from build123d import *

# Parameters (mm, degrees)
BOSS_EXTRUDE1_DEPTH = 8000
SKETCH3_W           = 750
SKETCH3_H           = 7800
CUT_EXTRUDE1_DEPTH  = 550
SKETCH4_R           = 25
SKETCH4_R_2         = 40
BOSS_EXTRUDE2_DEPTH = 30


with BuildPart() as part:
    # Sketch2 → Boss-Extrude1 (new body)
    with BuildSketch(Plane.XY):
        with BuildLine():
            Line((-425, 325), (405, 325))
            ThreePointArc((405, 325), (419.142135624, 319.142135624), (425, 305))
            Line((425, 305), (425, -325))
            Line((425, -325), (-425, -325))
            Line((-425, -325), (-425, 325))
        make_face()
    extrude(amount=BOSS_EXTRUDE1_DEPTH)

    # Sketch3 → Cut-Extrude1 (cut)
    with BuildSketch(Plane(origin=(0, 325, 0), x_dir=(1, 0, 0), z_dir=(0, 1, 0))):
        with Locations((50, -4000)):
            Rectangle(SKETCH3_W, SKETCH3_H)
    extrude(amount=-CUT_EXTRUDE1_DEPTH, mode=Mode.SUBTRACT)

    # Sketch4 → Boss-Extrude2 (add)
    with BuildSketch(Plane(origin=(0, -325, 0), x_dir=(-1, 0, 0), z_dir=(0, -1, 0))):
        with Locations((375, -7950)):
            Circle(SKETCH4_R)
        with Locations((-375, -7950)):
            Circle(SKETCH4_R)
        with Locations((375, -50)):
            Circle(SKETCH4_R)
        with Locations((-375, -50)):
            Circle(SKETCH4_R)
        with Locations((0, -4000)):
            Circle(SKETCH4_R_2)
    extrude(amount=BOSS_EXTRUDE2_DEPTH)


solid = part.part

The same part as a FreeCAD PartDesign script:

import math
import FreeCAD as App
import Part
import Sketcher
from FreeCAD import Vector
Q = App.Units.Quantity

doc = App.newDocument("Part")
body = doc.addObject("PartDesign::Body", "Body")

sketch1 = doc.addObject("Sketcher::SketchObject", "Sketch")
body.addObject(sketch1)
sketch1.AttachmentSupport = (doc.XY_Plane, [""])
sketch1.MapMode = "FlatFace"
sketch1.addGeometry([
    Part.LineSegment(Vector(405, 325, 0), Vector(-425, 325, 0)),
    Part.LineSegment(Vector(-425, 325, 0), Vector(-425, -325, 0)),
    Part.LineSegment(Vector(-425, -325, 0), Vector(425, -325, 0)),
    Part.LineSegment(Vector(425, -325, 0), Vector(425, 305, 0)),
    Part.ArcOfCircle(Part.Circle(Vector(405, 305, 0), Vector(0, 0, 1), 20), math.radians(0), math.radians(90)),
], False)
sketch1.addConstraint([
    Sketcher.Constraint("Coincident", 0, 2, 1, 1),
    Sketcher.Constraint("Coincident", 1, 2, 2, 1),
    Sketcher.Constraint("Coincident", 2, 2, 3, 1),
    Sketcher.Constraint("Tangent", 3, 2, 4, 1),
    Sketcher.Constraint("Tangent", 4, 2, 0, 1),
    Sketcher.Constraint("Horizontal", 0),
    Sketcher.Constraint("Vertical", 1),
    Sketcher.Constraint("Horizontal", 2),
    Sketcher.Constraint("Vertical", 3),
    Sketcher.Constraint("Symmetric", 0, 2, 2, 2, -1, 1),
    Sketcher.Constraint("Radius", 4, Q("20 mm")),
    Sketcher.Constraint("DistanceX", 0, 2, 0, 1, Q("830 mm")),
    Sketcher.Constraint("DistanceY", 1, 2, 1, 1, Q("650 mm")),
])
pad1 = doc.addObject("PartDesign::Pad", "Pad")
body.addObject(pad1)
pad1.Profile = sketch1
pad1.Length = 8000

sketch2 = doc.addObject("Sketcher::SketchObject", "Sketch001")
body.addObject(sketch2)
sketch2.AttachmentSupport = (doc.XZ_Plane, [""])
sketch2.MapMode = "FlatFace"
sketch2.AttachmentOffset = App.Placement(Vector(0, 0, -325), App.Rotation())
sketch2.addGeometry([
    Part.LineSegment(Vector(-325, 100, 0), Vector(-325, 7900, 0)),
    Part.LineSegment(Vector(-325, 7900, 0), Vector(425, 7900, 0)),
    Part.LineSegment(Vector(425, 7900, 0), Vector(425, 100, 0)),
    Part.LineSegment(Vector(425, 100, 0), Vector(-325, 100, 0)),
], False)
sketch2.addConstraint([
    Sketcher.Constraint("Coincident", 0, 2, 1, 1),
    Sketcher.Constraint("Coincident", 1, 2, 2, 1),
    Sketcher.Constraint("Coincident", 2, 2, 3, 1),
    Sketcher.Constraint("Coincident", 3, 2, 0, 1),
    Sketcher.Constraint("Vertical", 0),
    Sketcher.Constraint("Horizontal", 1),
    Sketcher.Constraint("Vertical", 2),
    Sketcher.Constraint("Horizontal", 3),
    Sketcher.Constraint("DistanceX", 1, 1, 1, 2, Q("750 mm")),
    Sketcher.Constraint("DistanceY", 0, 1, 0, 2, Q("7800 mm")),
    Sketcher.Constraint("DistanceX", 0, 2, -1, 1, Q("325 mm")),
    Sketcher.Constraint("DistanceY", -1, 1, 0, 2, Q("7900 mm")),
])
pocket1 = doc.addObject("PartDesign::Pocket", "Pocket")
body.addObject(pocket1)
pocket1.Profile = sketch2
pocket1.Length = 550
pocket1.Reversed = True

sketch3 = doc.addObject("Sketcher::SketchObject", "Sketch002")
body.addObject(sketch3)
sketch3.AttachmentSupport = (doc.XZ_Plane, [""])
sketch3.MapMode = "FlatFace"
sketch3.AttachmentOffset = App.Placement(Vector(0, 0, 325), App.Rotation())
sketch3.addGeometry([
    Part.Circle(Vector(-375, 7950, 0), Vector(0, 0, 1), 25),
    Part.Circle(Vector(375, 7950, 0), Vector(0, 0, 1), 25),
    Part.Circle(Vector(-375, 50, 0), Vector(0, 0, 1), 25),
    Part.Circle(Vector(375, 50, 0), Vector(0, 0, 1), 25),
    Part.Circle(Vector(0, 4000, 0), Vector(0, 0, 1), 40),
], False)
sketch3.addConstraint([
    Sketcher.Constraint("Equal", 0, 1),
    Sketcher.Constraint("Equal", 1, 2),
    Sketcher.Constraint("Equal", 2, 3),
    Sketcher.Constraint("Symmetric", 0, 3, 1, 3, -2),
    Sketcher.Constraint("Symmetric", 2, 3, 3, 3, -2),
    Sketcher.Constraint("PointOnObject", 4, 3, -2),
    Sketcher.Constraint("Vertical", 0, 3, 2, 3),
    Sketcher.Constraint("Diameter", 0, Q("50 mm")),
    Sketcher.Constraint("Diameter", 4, Q("80 mm")),
    Sketcher.Constraint("DistanceX", 0, 3, -1, 1, Q("375 mm")),
    Sketcher.Constraint("DistanceY", -1, 1, 0, 3, Q("7950 mm")),
    Sketcher.Constraint("DistanceY", -1, 1, 2, 3, Q("50 mm")),
    Sketcher.Constraint("DistanceY", -1, 1, 4, 3, Q("4000 mm")),
])
pad2 = doc.addObject("PartDesign::Pad", "Pad001")
body.addObject(pad2)
pad2.Profile = sketch3
pad2.Length = 30

doc.recompute()
